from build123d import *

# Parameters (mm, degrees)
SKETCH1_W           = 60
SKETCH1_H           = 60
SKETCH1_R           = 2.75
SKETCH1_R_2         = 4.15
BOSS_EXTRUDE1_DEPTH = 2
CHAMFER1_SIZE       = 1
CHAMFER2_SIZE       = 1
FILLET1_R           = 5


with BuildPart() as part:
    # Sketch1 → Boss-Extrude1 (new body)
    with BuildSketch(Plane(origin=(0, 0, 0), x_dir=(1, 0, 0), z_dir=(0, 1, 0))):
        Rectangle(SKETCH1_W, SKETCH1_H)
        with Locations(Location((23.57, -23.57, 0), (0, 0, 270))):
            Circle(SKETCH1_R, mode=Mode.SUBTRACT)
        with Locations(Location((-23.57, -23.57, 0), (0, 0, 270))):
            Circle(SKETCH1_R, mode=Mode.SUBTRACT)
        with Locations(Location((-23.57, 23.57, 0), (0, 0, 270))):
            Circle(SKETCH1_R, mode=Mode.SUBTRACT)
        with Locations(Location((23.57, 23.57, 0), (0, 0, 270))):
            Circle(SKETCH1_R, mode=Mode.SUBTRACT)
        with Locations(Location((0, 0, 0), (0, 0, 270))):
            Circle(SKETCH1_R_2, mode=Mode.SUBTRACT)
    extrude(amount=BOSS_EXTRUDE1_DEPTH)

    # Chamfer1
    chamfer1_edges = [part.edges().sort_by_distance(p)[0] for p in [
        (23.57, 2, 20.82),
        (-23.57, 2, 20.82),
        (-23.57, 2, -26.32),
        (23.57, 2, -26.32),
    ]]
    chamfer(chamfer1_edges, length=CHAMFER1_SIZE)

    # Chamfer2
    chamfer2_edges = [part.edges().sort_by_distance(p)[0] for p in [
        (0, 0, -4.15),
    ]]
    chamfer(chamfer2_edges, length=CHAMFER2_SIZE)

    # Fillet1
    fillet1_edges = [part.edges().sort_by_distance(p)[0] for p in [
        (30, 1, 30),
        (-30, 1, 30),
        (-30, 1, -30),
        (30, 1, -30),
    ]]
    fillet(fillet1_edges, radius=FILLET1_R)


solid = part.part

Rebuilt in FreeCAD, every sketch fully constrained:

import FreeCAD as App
import Part
import Sketcher

V = App.Vector
Q = App.Units.Quantity


def edges_at(feature, points):
    """Names of the edges that pass closest to the given points."""
    edges = feature.Shape.Edges
    near = lambda p: min(range(len(edges)), key=lambda i: edges[i].distToShape(Part.Vertex(*p))[0])
    return sorted({f"Edge{near(p) + 1}" for p in points})

doc = App.newDocument("Part")
body = doc.addObject("PartDesign::Body", "Body")

# Sketch on XZ plane
sketch1 = body.newObject("Sketcher::SketchObject", "Sketch")
sketch1.AttachmentSupport = (doc.getObject("XZ_Plane"), [""])
sketch1.MapMode = "FlatFace"
sketch1.addGeometry([
    Part.LineSegment(V(-30, -30, 0), V(-30, 30, 0)),  # 0
    Part.LineSegment(V(-30, 30, 0), V(30, 30, 0)),  # 1
    Part.LineSegment(V(30, 30, 0), V(30, -30, 0)),  # 2
    Part.LineSegment(V(30, -30, 0), V(-30, -30, 0)),  # 3
    Part.Circle(V(-23.6, 23.6, 0), V(0, 0, 1), 2.8),  # 4
    Part.Circle(V(23.6, 23.6, 0), V(0, 0, 1), 2.8),  # 5
    Part.Circle(V(-23.6, -23.6, 0), V(0, 0, 1), 2.8),  # 6
    Part.Circle(V(0, 0, 0), V(0, 0, 1), 4.2),  # 7
    Part.Circle(V(23.6, -23.6, 0), V(0, 0, 1), 2.8),  # 8
], False)
sketch1.addConstraint([
    Sketcher.Constraint("Coincident", 0, 2, 1, 1),
    Sketcher.Constraint("Coincident", 1, 2, 2, 1),
    Sketcher.Constraint("Coincident", 2, 2, 3, 1),
    Sketcher.Constraint("Coincident", 3, 2, 0, 1),
    Sketcher.Constraint("Vertical", 0),
    Sketcher.Constraint("Horizontal", 1),
    Sketcher.Constraint("Vertical", 2),
    Sketcher.Constraint("Horizontal", 3),
    Sketcher.Constraint("Coincident", 7, 3, -1, 1),
    Sketcher.Constraint("Equal", 4, 5),
    Sketcher.Constraint("Equal", 5, 6),
    Sketcher.Constraint("Equal", 6, 8),
    Sketcher.Constraint("Symmetric", 5, 3, 6, 3, -1, 1),
    Sketcher.Constraint("Symmetric", 4, 3, 8, 3, -1, 1),
    Sketcher.Constraint("Symmetric", 0, 2, 2, 2, -1, 1),
    Sketcher.Constraint("Symmetric", 4, 3, 5, 3, -2),
    Sketcher.Constraint("Equal", 3, 0),
    Sketcher.Constraint("Diameter", 4, Q("5.5 mm")),
    Sketcher.Constraint("Diameter", 7, Q("8.3 mm")),
    Sketcher.Constraint("DistanceX", 1, 1, 1, 2, Q("60 mm")),
    Sketcher.Constraint("DistanceX", 4, 3, -1, 1, Q("23.57 mm")),
    Sketcher.Constraint("DistanceY", -1, 1, 4, 3, Q("23.57 mm")),
])
pad1 = body.newObject("PartDesign::Pad", "Pad")
pad1.Profile = sketch1
pad1.Length = 2
pad1.Reversed = True
doc.recompute()

chamfer = body.newObject("PartDesign::Chamfer", "Chamfer")
chamfer.Base = (pad1, edges_at(pad1, [
    (23.57, 2, 20.82),
    (-23.57, 2, 20.82),
    (-23.57, 2, -26.32),
    (23.57, 2, -26.32),
]))
chamfer.Size = 1
doc.recompute()

chamfer2 = body.newObject("PartDesign::Chamfer", "Chamfer001")
chamfer2.Base = (chamfer, edges_at(chamfer, [(0, 0, -4.15)]))
chamfer2.Size = 1
doc.recompute()

fillet = body.newObject("PartDesign::Fillet", "Fillet")
fillet.Base = (chamfer2, edges_at(chamfer2, [
    (30, 1, 30),
    (-30, 1, 30),
    (-30, 1, -30),
    (30, 1, -30),
]))
fillet.Radius = 5

doc.recompute()
